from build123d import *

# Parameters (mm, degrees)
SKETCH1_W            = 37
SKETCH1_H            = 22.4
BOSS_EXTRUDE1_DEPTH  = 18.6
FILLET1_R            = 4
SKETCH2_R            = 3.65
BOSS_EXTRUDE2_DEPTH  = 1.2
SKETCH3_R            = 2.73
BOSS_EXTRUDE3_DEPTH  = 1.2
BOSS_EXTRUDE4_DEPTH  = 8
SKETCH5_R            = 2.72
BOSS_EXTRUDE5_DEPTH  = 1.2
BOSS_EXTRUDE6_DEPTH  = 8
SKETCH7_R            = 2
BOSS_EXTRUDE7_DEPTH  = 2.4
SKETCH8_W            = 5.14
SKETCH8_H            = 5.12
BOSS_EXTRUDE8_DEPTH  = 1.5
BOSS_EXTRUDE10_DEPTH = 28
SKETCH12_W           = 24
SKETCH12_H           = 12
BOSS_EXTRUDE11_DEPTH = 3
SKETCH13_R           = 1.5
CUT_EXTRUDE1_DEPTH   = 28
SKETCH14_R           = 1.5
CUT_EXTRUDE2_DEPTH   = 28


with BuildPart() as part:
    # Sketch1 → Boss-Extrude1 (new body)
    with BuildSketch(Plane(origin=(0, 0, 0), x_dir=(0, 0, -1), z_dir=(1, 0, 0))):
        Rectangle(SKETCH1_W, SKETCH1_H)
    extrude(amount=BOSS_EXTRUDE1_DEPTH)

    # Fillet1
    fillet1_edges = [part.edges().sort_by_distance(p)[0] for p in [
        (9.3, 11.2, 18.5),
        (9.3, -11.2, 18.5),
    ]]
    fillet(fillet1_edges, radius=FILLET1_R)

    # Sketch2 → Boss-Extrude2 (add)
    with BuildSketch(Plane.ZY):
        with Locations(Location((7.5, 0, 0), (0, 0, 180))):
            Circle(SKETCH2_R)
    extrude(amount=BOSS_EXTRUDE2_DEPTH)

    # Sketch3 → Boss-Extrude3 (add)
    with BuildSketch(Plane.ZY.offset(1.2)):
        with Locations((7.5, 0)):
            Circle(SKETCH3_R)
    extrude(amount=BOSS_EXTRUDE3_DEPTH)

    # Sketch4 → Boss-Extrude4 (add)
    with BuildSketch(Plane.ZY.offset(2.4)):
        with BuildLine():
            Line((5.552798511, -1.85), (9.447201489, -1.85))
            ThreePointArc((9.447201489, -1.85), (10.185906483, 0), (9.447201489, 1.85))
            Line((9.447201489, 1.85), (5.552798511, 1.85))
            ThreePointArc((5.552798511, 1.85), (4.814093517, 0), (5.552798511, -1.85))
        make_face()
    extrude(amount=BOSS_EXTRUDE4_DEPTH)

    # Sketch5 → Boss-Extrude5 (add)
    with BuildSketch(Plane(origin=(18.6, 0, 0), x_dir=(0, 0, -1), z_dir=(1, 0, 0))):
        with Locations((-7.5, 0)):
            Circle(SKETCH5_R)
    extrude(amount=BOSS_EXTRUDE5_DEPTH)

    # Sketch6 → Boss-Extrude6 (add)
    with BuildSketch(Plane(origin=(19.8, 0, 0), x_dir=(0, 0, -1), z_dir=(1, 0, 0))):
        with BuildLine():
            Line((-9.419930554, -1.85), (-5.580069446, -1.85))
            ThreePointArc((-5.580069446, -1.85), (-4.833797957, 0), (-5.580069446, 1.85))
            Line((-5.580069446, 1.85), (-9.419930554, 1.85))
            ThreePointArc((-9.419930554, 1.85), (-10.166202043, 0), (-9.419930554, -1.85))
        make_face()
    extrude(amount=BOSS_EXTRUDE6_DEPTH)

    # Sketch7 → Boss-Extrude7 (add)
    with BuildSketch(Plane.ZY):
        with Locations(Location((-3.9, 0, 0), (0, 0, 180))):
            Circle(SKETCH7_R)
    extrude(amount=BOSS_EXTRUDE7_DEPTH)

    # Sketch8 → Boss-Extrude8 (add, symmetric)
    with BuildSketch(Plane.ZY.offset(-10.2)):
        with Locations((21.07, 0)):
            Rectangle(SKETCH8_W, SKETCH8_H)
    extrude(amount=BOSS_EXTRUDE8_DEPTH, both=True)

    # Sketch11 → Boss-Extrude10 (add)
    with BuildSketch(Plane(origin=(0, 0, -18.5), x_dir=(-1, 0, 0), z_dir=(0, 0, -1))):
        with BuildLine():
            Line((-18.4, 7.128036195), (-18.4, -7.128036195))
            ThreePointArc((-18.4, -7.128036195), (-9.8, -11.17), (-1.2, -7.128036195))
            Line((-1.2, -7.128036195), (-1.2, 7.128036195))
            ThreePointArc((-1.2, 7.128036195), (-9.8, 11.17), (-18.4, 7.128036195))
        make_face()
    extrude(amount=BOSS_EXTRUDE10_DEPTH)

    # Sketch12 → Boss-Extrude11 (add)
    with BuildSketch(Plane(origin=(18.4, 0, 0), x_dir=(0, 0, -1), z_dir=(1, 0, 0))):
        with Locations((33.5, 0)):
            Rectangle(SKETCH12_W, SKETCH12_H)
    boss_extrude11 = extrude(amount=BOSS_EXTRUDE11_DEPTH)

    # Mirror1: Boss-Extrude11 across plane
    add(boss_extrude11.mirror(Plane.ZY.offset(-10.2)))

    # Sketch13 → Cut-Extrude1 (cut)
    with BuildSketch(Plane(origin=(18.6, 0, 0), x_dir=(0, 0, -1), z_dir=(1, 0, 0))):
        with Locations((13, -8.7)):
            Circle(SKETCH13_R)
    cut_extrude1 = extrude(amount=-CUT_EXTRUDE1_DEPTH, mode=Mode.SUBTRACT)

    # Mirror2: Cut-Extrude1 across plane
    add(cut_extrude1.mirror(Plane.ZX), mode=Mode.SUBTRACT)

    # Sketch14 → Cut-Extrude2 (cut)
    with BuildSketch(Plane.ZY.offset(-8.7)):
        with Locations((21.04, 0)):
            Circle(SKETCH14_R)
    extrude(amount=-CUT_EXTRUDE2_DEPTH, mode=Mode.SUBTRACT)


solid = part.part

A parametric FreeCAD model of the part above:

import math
import FreeCAD as App
import Part
import Sketcher

V = App.Vector
Q = App.Units.Quantity


def edges_at(feature, points):
    """Names of the edges that pass closest to the given points."""
    edges = feature.Shape.Edges
    near = lambda p: min(range(len(edges)), key=lambda i: edges[i].distToShape(Part.Vertex(*p))[0])
    return sorted({f"Edge{near(p) + 1}" for p in points})


def add_polygon(sketch, points):
    """Adds a closed chain of lines whose ends are joined by coincident constraints."""
    first, n = sketch.GeometryCount, len(points)
    for a, b in zip(points, points[1:] + points[:1]):
        sketch.addGeometry(Part.LineSegment(App.Vector(*a, 0), App.Vector(*b, 0)), False)
    for i in range(n):
        sketch.addConstraint(Sketcher.Constraint("Coincident", first + i, 2, first + (i + 1) % n, 1))

doc = App.newDocument("Part")
body = doc.addObject("PartDesign::Body", "Body")

# Sketch on YZ plane
sketch1 = doc.addObject("Sketcher::SketchObject", "Sketch")
body.addObject(sketch1)
sketch1.AttachmentSupport = (doc.YZ_Plane, [""])
sketch1.MapMode = "FlatFace"
add_polygon(sketch1, [(11, 18), (-11, 18), (-11, -18), (11, -18)])  # lines 0-3
sketch1.addConstraint([
    Sketcher.Constraint("Horizontal", 0),
    Sketcher.Constraint("Vertical", 1),
    Sketcher.Constraint("Horizontal", 2),
    Sketcher.Constraint("Vertical", 3),
    Sketcher.Constraint("Symmetric", 0, 2, 2, 2, -1, 1),
    Sketcher.Constraint("DistanceY", 1, 2, 1, 1, Q("37 mm")),
    Sketcher.Constraint("DistanceX", 0, 2, 0, 1, Q("22.4 mm")),
])
pad1 = doc.addObject("PartDesign::Pad", "Pad")
body.addObject(pad1)
pad1.Profile = sketch1
pad1.Length = 18.6
doc.recompute()

fillet = doc.addObject("PartDesign::Fillet", "Fillet")
body.addObject(fillet)
fillet.Base = (pad1, edges_at(pad1, [(9.3, 11.2, 18.5), (9.3, -11.2, 18.5)]))
fillet.Radius = 4

# Sketch on YZ plane
sketch2 = doc.addObject("Sketcher::SketchObject", "Sketch001")
body.addObject(sketch2)
sketch2.AttachmentSupport = (doc.YZ_Plane, [""])
sketch2.MapMode = "FlatFace"
sketch2.addGeometry(Part.Circle(V(0, 7.5, 0), V(0, 0, 1), 3.6), False)
sketch2.addConstraint([
    Sketcher.Constraint("PointOnObject", 0, 3, -2),
    Sketcher.Constraint("Diameter", 0, Q("7.3 mm")),
    Sketcher.Constraint("DistanceY", -1, 1, 0, 3, Q("7.5 mm")),
])
pad2 = doc.addObject("PartDesign::Pad", "Pad001")
body.addObject(pad2)
pad2.Profile = sketch2
pad2.Length = 1.2
pad2.Reversed = True

# Sketch on YZ plane
sketch3 = doc.addObject("Sketcher::SketchObject", "Sketch002")
body.addObject(sketch3)
sketch3.AttachmentSupport = (doc.YZ_Plane, [""])
sketch3.MapMode = "FlatFace"
sketch3.AttachmentOffset = App.Placement(V(0, 0, -1.2), App.Rotation())
sketch3.addGeometry(Part.Circle(V(0, 7.5, 0), V(0, 0, 1), 2.7), False)
sketch3.addConstraint([
    Sketcher.Constraint("PointOnObject", 0, 3, -2),
    Sketcher.Constraint("Diameter", 0, Q("5.46 mm")),
    Sketcher.Constraint("DistanceY", -1, 1, 0, 3, Q("7.5 mm")),
])
pad3 = doc.addObject("PartDesign::Pad", "Pad002")
body.addObject(pad3)
pad3.Profile = sketch3
pad3.Length = 1.2
pad3.Reversed = True

# Sketch on YZ plane
sketch4 = doc.addObject("Sketcher::SketchObject", "Sketch003")
body.addObject(sketch4)
sketch4.AttachmentSupport = (doc.YZ_Plane, [""])
sketch4.MapMode = "FlatFace"
sketch4.AttachmentOffset = App.Placement(V(0, 0, -2.4), App.Rotation())
sketch4.addGeometry([
    Part.LineSegment(V(-1.9, 5.6, 0), V(-1.9, 9.4, 0)),
    Part.ArcOfCircle(Part.Circle(V(0, 7.5, 0), V(0, 0, 1), 2.7), math.radians(46), math.radians(134)),
    Part.LineSegment(V(1.9, 9.4, 0), V(1.9, 5.6, 0)),
    Part.ArcOfCircle(Part.Circle(V(0, 7.5, 0), V(0, 0, 1), 2.7), math.radians(-134), math.radians(-46)),
], False)
sketch4.addConstraint([
    Sketcher.Constraint("Coincident", 0, 2, 1, 2),
    Sketcher.Constraint("Coincident", 1, 1, 2, 1),
    Sketcher.Constraint("Coincident", 2, 2, 3, 2),
    Sketcher.Constraint("Coincident", 3, 1, 0, 1),
    Sketcher.Constraint("Vertical", 0),
    Sketcher.Constraint("Vertical", 2),
    Sketcher.Constraint("Coincident", 3, 3, 1, 3),
    Sketcher.Constraint("Equal", 1, 3),
    Sketcher.Constraint("Symmetric", 0, 2, 1, 1, -2),
    Sketcher.Constraint("DistanceY", -1, 1, 1, 3, Q("7.5 mm")),
    Sketcher.Constraint("DistanceX", 0, 2, 1, 1, Q("3.7 mm")),
    Sketcher.Constraint("Radius", 1, Q("2.685906 mm")),
])
pad4 = doc.addObject("PartDesign::Pad", "Pad003")
body.addObject(pad4)
pad4.Profile = sketch4
pad4.Length = 8
pad4.Reversed = True

# Sketch on YZ plane
sketch5 = doc.addObject("Sketcher::SketchObject", "Sketch004")
body.addObject(sketch5)
sketch5.AttachmentSupport = (doc.YZ_Plane, [""])
sketch5.MapMode = "FlatFace"
sketch5.AttachmentOffset = App.Placement(V(0, 0, 18.6), App.Rotation())
sketch5.addGeometry(Part.Circle(V(0, 7.5, 0), V(0, 0, 1), 2.7), False)
sketch5.addConstraint([
    Sketcher.Constraint("PointOnObject", 0, 3, -2),
    Sketcher.Constraint("Diameter", 0, Q("5.44 mm")),
    Sketcher.Constraint("DistanceY", -1, 1, 0, 3, Q("7.5 mm")),
])
pad5 = doc.addObject("PartDesign::Pad", "Pad004")
body.addObject(pad5)
pad5.Profile = sketch5
pad5.Length = 1.2

# Sketch on YZ plane
sketch6 = doc.addObject("Sketcher::SketchObject", "Sketch005")
body.addObject(sketch6)
sketch6.AttachmentSupport = (doc.YZ_Plane, [""])
sketch6.MapMode = "FlatFace"
sketch6.AttachmentOffset = App.Placement(V(0, 0, 19.8), App.Rotation())
sketch6.addGeometry([
    Part.LineSegment(V(-1.9, 9.4, 0), V(-1.9, 5.6, 0)),
    Part.ArcOfCircle(Part.Circle(V(0, 7.5, 0), V(0, 0, 1), 2.7), math.radians(-134), math.radians(-46)),
    Part.LineSegment(V(1.9, 5.6, 0), V(1.9, 9.4, 0)),
    Part.ArcOfCircle(Part.Circle(V(0, 7.5, 0), V(0, 0, 1), 2.7), math.radians(46), math.radians(134)),
], False)
sketch6.addConstraint([
    Sketcher.Constraint("Coincident", 0, 2, 1, 1),
    Sketcher.Constraint("Coincident", 1, 2, 2, 1),
    Sketcher.Constraint("Coincident", 2, 2, 3, 1),
    Sketcher.Constraint("Coincident", 3, 2, 0, 1),
    Sketcher.Constraint("Vertical", 0),
    Sketcher.Constraint("Vertical", 2),
    Sketcher.Constraint("Coincident", 3, 3, 1, 3),
    Sketcher.Constraint("Equal", 1, 3),
    Sketcher.Constraint("Symmetric", 0, 2, 1, 2, -2),
    Sketcher.Constraint("DistanceY", -1, 1, 1, 3, Q("7.5 mm")),
    Sketcher.Constraint("DistanceX", 0, 2, 1, 2, Q("3.7 mm")),
    Sketcher.Constraint("Radius", 1, Q("2.666202 mm")),
])
pad6 = doc.addObject("PartDesign::Pad", "Pad005")
body.addObject(pad6)
pad6.Profile = sketch6
pad6.Length = 8

# Sketch on YZ plane
sketch7 = doc.addObject("Sketcher::SketchObject", "Sketch006")
body.addObject(sketch7)
sketch7.AttachmentSupport = (doc.YZ_Plane, [""])
sketch7.MapMode = "FlatFace"
sketch7.addGeometry(Part.Circle(V(0, -3.9, 0), V(0, 0, 1), 2), False)
sketch7.addConstraint([
    Sketcher.Constraint("PointOnObject", 0, 3, -2),
    Sketcher.Constraint("Diameter", 0, Q("4 mm")),
    Sketcher.Constraint("DistanceY", 0, 3, -1, 1, Q("3.9 mm")),
])
pad7 = doc.addObject("PartDesign::Pad", "Pad006")
body.addObject(pad7)
pad7.Profile = sketch7
pad7.Length = 2.4
pad7.Reversed = True

# Sketch on YZ plane
sketch8 = doc.addObject("Sketcher::SketchObject", "Sketch007")
body.addObject(sketch8)
sketch8.AttachmentSupport = (doc.YZ_Plane, [""])
sketch8.MapMode = "FlatFace"
sketch8.AttachmentOffset = App.Placement(V(0, 0, 10.2), App.Rotation())
add_polygon(sketch8, [(3, 18), (-3, 18), (-3, 24), (3, 24)])  # lines 0-3
sketch8.addConstraint([
    Sketcher.Constraint("Horizontal", 0),
    Sketcher.Constraint("Vertical", 1),
    Sketcher.Constraint("Horizontal", 2),
    Sketcher.Constraint("Vertical", 3),
    Sketcher.Constraint("DistanceX", 0, 2, 0, 1, Q("5.12 mm")),
    Sketcher.Constraint("DistanceY", 1, 1, 1, 2, Q("5.14 mm")),
    Sketcher.Constraint("DistanceY", -1, 1, 0, 2, Q("18.5 mm")),
    Sketcher.Constraint("DistanceX", 0, 2, -1, 1, Q("2.56 mm")),
])
pad8 = doc.addObject("PartDesign::Pad", "Pad007")
body.addObject(pad8)
pad8.Profile = sketch8
pad8.Length = 3
pad8.Midplane = True

# Sketch on XY plane
sketch9 = doc.addObject("Sketcher::SketchObject", "Sketch008")
body.addObject(sketch9)
sketch9.AttachmentSupport = (doc.XY_Plane, [""])
sketch9.MapMode = "FlatFace"
sketch9.AttachmentOffset = App.Placement(V(0, 0, -18.5), App.Rotation())
sketch9.addGeometry([
    Part.LineSegment(V(18, 7, 0), V(18, -7, 0)),
    Part.ArcOfCircle(Part.Circle(V(10, 0, 0), V(0, 0, 1), 11), math.radians(-140), math.radians(-40)),
    Part.LineSegment(V(1, -7, 0), V(1, 7, 0)),
    Part.ArcOfCircle(Part.Circle(V(10, 0, 0), V(0, 0, 1), 11), math.radians(40), math.radians(140)),
], False)
sketch9.addConstraint([
    Sketcher.Constraint("Coincident", 0, 2, 1, 2),
    Sketcher.Constraint("Coincident", 1, 1, 2, 1),
    Sketcher.Constraint("Coincident", 2, 2, 3, 2),
    Sketcher.Constraint("Coincident", 3, 1, 0, 1),
    Sketcher.Constraint("Vertical", 0),
    Sketcher.Constraint("Vertical", 2),
    Sketcher.Constraint("Coincident", 3, 3, 1, 3),
    Sketcher.Constraint("Equal", 1, 3),
    Sketcher.Constraint("PointOnObject", 1, 3, -1),
    Sketcher.Constraint("Horizontal", 0, 2, 1, 1),
    Sketcher.Constraint("Radius", 1, Q("11.17 mm")),
    Sketcher.Constraint("DistanceX", -1, 1, 1, 3, Q("9.8 mm")),
    Sketcher.Constraint("DistanceX", -1, 1, 0, 2, Q("18.4 mm")),
])
pad9 = doc.addObject("PartDesign::Pad", "Pad008")
body.addObject(pad9)
pad9.Profile = sketch9
pad9.Length = 28
pad9.Reversed = True

# Sketch on YZ plane
sketch10 = doc.addObject("Sketcher::SketchObject", "Sketch009")
body.addObject(sketch10)
sketch10.AttachmentSupport = (doc.YZ_Plane, [""])
sketch10.MapMode = "FlatFace"
sketch10.AttachmentOffset = App.Placement(V(0, 0, 18.4), App.Rotation())
add_polygon(sketch10, [(6, -22), (-6, -22), (-6, -46), (6, -46)])  # lines 0-3
sketch10.addConstraint([
    Sketcher.Constraint("Horizontal", 0),
    Sketcher.Constraint("Vertical", 1),
    Sketcher.Constraint("Horizontal", 2),
    Sketcher.Constraint("Vertical", 3),
    Sketcher.Constraint("DistanceX", 0, 2, 0, 1, Q("12 mm")),
    Sketcher.Constraint("DistanceY", 1, 2, 1, 1, Q("24 mm")),
    Sketcher.Constraint("DistanceX", 0, 2, -1, 1, Q("6 mm")),
    Sketcher.Constraint("DistanceY", 0, 2, -1, 1, Q("21.5 mm")),
])
pad10 = doc.addObject("PartDesign::Pad", "Pad009")
body.addObject(pad10)
pad10.Profile = sketch10
pad10.Length = 3
doc.recompute()

datumplane = doc.addObject("PartDesign::Plane", "DatumPlane")
body.addObject(datumplane)
datumplane.AttachmentSupport = (doc.YZ_Plane, [""])
datumplane.MapMode = "FlatFace"
datumplane.AttachmentOffset = App.Placement(V(0, 0, 10.2), App.Rotation())
mirrored = doc.addObject("PartDesign::Mirrored", "Mirrored")
body.addObject(mirrored)
mirrored.Originals = [pad10]
mirrored.MirrorPlane = (datumplane, [""])
body.Tip = mirrored

# Sketch on YZ plane
sketch11 = doc.addObject("Sketcher::SketchObject", "Sketch010")
body.addObject(sketch11)
sketch11.AttachmentSupport = (doc.YZ_Plane, [""])
sketch11.MapMode = "FlatFace"
sketch11.AttachmentOffset = App.Placement(V(0, 0, 18.6), App.Rotation())
sketch11.addGeometry(Part.Circle(V(-8.7, -13, 0), V(0, 0, 1), 1.5), False)
sketch11.addConstraint([
    Sketcher.Constraint("Diameter", 0, Q("3 mm")),
    Sketcher.Constraint("DistanceY", 0, 3, -1, 1, Q("13 mm")),
    Sketcher.Constraint("DistanceX", 0, 3, -1, 1, Q("8.7 mm")),
])
pocket1 = doc.addObject("PartDesign::Pocket", "Pocket")
body.addObject(pocket1)
pocket1.Profile = sketch11
pocket1.Length = 28
doc.recompute()

mirrored2 = doc.addObject("PartDesign::Mirrored", "Mirrored001")
body.addObject(mirrored2)
mirrored2.Originals = [pocket1]
mirrored2.MirrorPlane = (doc.XZ_Plane, [""])
body.Tip = mirrored2

# Sketch on YZ plane
sketch12 = doc.addObject("Sketcher::SketchObject", "Sketch011")
body.addObject(sketch12)
sketch12.AttachmentSupport = (doc.YZ_Plane, [""])
sketch12.MapMode = "FlatFace"
sketch12.AttachmentOffset = App.Placement(V(0, 0, 8.7), App.Rotation())
sketch12.addGeometry(Part.Circle(V(0, 21, 0), V(0, 0, 1), 1.5), False)
sketch12.addConstraint([
    Sketcher.Constraint("PointOnObject", 0, 3, -2),
    Sketcher.Constraint("Diameter", 0, Q("3 mm")),
    Sketcher.Constraint("DistanceY", -1, 1, 0, 3, Q("21.04 mm")),
])
pocket2 = doc.addObject("PartDesign::Pocket", "Pocket001")
body.addObject(pocket2)
pocket2.Profile = sketch12
pocket2.Length = 28
pocket2.Reversed = True

doc.recompute()
